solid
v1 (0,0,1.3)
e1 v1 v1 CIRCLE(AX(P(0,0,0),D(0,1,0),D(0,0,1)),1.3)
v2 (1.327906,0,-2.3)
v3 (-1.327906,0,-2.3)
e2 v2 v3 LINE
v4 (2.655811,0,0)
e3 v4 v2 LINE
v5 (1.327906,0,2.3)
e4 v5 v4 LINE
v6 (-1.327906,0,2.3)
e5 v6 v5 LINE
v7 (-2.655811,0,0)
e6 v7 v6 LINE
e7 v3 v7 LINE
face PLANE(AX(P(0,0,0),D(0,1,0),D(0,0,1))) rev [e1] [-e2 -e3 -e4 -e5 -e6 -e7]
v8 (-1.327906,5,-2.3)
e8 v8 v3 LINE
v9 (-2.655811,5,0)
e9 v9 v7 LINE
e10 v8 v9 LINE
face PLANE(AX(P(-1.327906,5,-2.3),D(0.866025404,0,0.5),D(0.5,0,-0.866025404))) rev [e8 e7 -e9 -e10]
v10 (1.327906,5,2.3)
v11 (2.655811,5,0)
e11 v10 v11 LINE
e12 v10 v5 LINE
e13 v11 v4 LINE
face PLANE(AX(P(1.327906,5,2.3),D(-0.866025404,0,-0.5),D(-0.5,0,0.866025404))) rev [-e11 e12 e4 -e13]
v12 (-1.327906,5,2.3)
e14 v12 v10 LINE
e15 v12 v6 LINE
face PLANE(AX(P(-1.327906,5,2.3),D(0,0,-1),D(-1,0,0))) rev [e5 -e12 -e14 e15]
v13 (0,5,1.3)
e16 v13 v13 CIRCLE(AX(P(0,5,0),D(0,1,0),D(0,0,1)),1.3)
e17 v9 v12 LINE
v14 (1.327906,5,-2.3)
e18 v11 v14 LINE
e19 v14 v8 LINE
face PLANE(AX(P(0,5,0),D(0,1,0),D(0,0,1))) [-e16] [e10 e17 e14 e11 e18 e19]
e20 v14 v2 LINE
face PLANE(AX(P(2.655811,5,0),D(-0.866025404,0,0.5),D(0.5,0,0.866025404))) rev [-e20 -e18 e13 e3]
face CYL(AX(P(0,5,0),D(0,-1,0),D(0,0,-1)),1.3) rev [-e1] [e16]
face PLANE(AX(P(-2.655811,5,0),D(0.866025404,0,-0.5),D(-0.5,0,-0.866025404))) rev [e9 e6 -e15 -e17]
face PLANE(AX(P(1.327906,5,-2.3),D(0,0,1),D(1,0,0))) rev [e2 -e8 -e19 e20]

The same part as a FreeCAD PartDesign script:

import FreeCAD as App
import Part
import Sketcher

V = App.Vector
Q = App.Units.Quantity


def add_polygon(sketch, points):
    """Adds a closed chain of lines whose ends are joined by coincident constraints."""
    first, n = sketch.GeometryCount, len(points)
    for a, b in zip(points, points[1:] + points[:1]):
        sketch.addGeometry(Part.LineSegment(App.Vector(*a, 0), App.Vector(*b, 0)), False)
    for i in range(n):
        sketch.addConstraint(Sketcher.Constraint("Coincident", first + i, 2, first + (i + 1) % n, 1))

doc = App.newDocument("Part")
body = doc.addObject("PartDesign::Body", "Body")

sketch1 = doc.addObject("Sketcher::SketchObject", "Sketch")
body.addObject(sketch1)
sketch1.AttachmentSupport = (doc.XZ_Plane, [""])
sketch1.MapMode = "FlatFace"
add_polygon(sketch1, [(1.3, 2.3), (2.7, 0), (1.3, -2.3), (-1.3, -2.3), (-2.7, 0), (-1.3, 2.3)])
sketch1.addGeometry(Part.Circle(V(0, 0, 0), V(0, 0, 1), 1.3), False)
sketch1.addConstraint([
    Sketcher.Constraint("Horizontal", 2),
    Sketcher.Constraint("Horizontal", 5),
    Sketcher.Constraint("Coincident", 6, 3, -1, 1),
    Sketcher.Constraint("Symmetric", 0, 2, 3, 2, -1, 1),
    Sketcher.Constraint("Symmetric", 1, 2, 4, 2, -1, 1),
    Sketcher.Constraint("PointOnObject", 0, 2, -1),
    Sketcher.Constraint("Parallel", 0, 3),
    Sketcher.Constraint("Vertical", 2, 2, 4, 2),
    Sketcher.Constraint("Diameter", 6, Q("2.6 mm")),
    Sketcher.Constraint("Angle", 0, Q("-60 deg")),
    Sketcher.Constraint("DistanceY", 1, 2, -1, 1, Q("2.3 mm")),
    Sketcher.Constraint("DistanceX", 2, 2, 2, 1, Q("2.655811 mm")),
])
pad1 = doc.addObject("PartDesign::Pad", "Pad")
body.addObject(pad1)
pad1.Profile = sketch1
pad1.Length = 5
pad1.Reversed = True

doc.recompute()
